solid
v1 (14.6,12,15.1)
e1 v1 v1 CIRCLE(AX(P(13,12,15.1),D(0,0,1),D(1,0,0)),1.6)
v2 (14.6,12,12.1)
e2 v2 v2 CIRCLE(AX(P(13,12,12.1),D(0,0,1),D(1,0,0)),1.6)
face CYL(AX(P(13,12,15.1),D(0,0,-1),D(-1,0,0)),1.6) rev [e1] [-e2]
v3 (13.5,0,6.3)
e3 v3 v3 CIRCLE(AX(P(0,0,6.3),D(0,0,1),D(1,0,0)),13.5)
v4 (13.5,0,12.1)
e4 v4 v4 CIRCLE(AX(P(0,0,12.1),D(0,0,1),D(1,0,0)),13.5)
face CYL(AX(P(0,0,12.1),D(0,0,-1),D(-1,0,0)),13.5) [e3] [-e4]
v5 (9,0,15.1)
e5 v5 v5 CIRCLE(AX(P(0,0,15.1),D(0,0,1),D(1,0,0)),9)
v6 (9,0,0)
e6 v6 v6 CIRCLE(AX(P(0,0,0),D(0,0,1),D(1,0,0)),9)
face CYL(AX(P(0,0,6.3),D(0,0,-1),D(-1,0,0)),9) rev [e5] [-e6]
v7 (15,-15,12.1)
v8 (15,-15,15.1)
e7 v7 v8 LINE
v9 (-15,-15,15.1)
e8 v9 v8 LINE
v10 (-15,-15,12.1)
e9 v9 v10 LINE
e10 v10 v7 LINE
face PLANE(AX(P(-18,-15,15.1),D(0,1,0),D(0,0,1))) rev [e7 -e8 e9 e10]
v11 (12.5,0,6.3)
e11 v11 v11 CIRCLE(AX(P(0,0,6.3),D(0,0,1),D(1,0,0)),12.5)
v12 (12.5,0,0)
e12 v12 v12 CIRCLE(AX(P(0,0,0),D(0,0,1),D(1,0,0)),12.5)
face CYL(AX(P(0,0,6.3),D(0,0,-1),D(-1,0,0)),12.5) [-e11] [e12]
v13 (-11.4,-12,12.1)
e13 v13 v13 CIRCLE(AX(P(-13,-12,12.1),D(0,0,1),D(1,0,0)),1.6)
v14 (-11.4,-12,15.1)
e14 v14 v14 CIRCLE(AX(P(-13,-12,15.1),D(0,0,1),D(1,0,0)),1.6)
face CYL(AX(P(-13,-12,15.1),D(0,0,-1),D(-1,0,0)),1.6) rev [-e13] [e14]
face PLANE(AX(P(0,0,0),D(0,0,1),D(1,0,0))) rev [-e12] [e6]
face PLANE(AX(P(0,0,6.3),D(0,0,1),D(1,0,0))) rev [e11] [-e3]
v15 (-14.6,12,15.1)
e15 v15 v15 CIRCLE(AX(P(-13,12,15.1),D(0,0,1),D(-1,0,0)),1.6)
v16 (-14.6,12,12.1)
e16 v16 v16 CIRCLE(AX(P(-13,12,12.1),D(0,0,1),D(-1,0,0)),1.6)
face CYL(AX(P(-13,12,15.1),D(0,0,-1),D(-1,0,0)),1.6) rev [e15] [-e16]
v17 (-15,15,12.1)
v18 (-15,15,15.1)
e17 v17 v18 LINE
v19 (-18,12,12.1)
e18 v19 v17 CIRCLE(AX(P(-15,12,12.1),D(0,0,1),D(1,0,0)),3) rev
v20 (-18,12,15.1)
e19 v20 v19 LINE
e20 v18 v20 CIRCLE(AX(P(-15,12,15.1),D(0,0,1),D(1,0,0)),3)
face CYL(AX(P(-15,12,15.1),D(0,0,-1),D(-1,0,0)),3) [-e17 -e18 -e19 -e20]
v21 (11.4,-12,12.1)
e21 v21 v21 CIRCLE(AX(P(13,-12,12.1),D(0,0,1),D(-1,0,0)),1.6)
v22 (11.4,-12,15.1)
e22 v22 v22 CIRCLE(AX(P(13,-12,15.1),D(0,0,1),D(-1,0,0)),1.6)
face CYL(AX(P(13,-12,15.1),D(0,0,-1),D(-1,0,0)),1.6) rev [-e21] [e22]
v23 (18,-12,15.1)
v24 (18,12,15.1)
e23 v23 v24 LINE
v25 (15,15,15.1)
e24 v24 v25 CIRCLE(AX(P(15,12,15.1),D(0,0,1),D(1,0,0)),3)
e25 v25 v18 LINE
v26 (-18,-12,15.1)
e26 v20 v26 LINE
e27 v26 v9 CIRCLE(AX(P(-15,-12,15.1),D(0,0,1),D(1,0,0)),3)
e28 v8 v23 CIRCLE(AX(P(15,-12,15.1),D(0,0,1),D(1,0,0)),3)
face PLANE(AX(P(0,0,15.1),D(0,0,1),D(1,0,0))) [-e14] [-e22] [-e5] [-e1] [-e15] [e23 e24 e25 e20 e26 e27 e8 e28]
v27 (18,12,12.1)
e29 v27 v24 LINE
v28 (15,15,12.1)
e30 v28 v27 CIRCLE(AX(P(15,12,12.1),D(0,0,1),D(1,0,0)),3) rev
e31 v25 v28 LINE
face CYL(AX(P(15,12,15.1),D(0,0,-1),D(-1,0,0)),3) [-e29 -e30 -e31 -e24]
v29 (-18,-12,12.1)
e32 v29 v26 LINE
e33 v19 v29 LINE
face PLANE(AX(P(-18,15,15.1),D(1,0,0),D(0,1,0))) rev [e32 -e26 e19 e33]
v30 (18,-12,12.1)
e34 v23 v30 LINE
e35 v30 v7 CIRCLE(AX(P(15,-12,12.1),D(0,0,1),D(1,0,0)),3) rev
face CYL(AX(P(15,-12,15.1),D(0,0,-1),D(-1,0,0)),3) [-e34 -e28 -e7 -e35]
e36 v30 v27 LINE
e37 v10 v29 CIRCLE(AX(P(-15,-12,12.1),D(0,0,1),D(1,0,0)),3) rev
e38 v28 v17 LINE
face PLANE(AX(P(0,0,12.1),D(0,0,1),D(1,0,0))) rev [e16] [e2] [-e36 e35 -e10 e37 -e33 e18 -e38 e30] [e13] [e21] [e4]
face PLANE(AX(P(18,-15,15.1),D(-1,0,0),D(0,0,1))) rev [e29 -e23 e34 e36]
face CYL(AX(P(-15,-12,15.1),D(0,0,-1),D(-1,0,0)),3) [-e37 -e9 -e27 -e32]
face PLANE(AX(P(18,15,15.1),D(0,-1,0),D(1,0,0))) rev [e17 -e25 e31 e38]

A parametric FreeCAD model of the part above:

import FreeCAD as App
import Part
import Sketcher
from FreeCAD import Vector


def edges_at(feature, points):
    """Names of the edges that pass closest to the given points."""
    edges = feature.Shape.Edges
    near = lambda p: min(range(len(edges)), key=lambda i: edges[i].distToShape(Part.Vertex(*p))[0])
    return sorted({f"Edge{near(p) + 1}" for p in points})


def add_polygon(sketch, points):
    """Adds a closed chain of lines whose ends are joined by coincident constraints."""
    first, n = sketch.GeometryCount, len(points)
    for a, b in zip(points, points[1:] + points[:1]):
        sketch.addGeometry(Part.LineSegment(App.Vector(*a, 0), App.Vector(*b, 0)), False)
    for i in range(n):
        sketch.addConstraint(Sketcher.Constraint("Coincident", first + i, 2, first + (i + 1) % n, 1))

doc = App.newDocument("Part")
body = doc.addObject("PartDesign::Body", "Body")

sketch1 = body.newObject("Sketcher::SketchObject", "Sketch")
sketch1.AttachmentSupport = (doc.getObject("XY_Plane"), [""])
sketch1.MapMode = "FlatFace"
sketch1.addGeometry([
    Part.Circle(Vector(0, 0, 0), Vector(0, 0, 1), 12),
    Part.Circle(Vector(0, 0, 0), Vector(0, 0, 1), 9),
], False)
sketch1.addConstraint([
    Sketcher.Constraint("Coincident", 0, 3, -1, 1),
    Sketcher.Constraint("Coincident", 1, 3, -1, 1),
    Sketcher.Constraint("Diameter", 0, 25.0),
    Sketcher.Constraint("Diameter", 1, 18.0),
])
pad1 = body.newObject("PartDesign::Pad", "Pad")
pad1.Profile = sketch1
pad1.Length = 6.3

sketch2 = body.newObject("Sketcher::SketchObject", "Sketch001")
sketch2.AttachmentSupport = (doc.getObject("XY_Plane"), [""])
sketch2.MapMode = "FlatFace"
sketch2.AttachmentOffset = App.Placement(Vector(0, 0, 6.3), App.Rotation())
sketch2.addGeometry([
    Part.Circle(Vector(0, 0, 0), Vector(0, 0, 1), 14),
    Part.Circle(Vector(0, 0, 0), Vector(0, 0, 1), 9),
], False)
sketch2.addConstraint([
    Sketcher.Constraint("Coincident", 0, 3, -1, 1),
    Sketcher.Constraint("Coincident", 1, 3, -1, 1),
    Sketcher.Constraint("Diameter", 0, 27.0),
    Sketcher.Constraint("Diameter", 1, 18.0),
])
pad2 = body.newObject("PartDesign::Pad", "Pad001")
pad2.Profile = sketch2
pad2.Length = 5.8

sketch3 = body.newObject("Sketcher::SketchObject", "Sketch002")
sketch3.AttachmentSupport = (doc.getObject("XY_Plane"), [""])
sketch3.MapMode = "FlatFace"
sketch3.AttachmentOffset = App.Placement(Vector(0, 0, 12.1), App.Rotation())
add_polygon(sketch3, [(-18, 15), (-18, -15), (18, -15), (18, 15)])
sketch3.addGeometry(Part.Circle(Vector(-13, -12, 0), Vector(0, 0, 1), 1.6), False)
sketch3.addGeometry(Part.Circle(Vector(13, -12, 0), Vector(0, 0, 1), 1.6), False)
sketch3.addGeometry(Part.Circle(Vector(0, 0, 0), Vector(0, 0, 1), 9), False)
sketch3.addGeometry(Part.Circle(Vector(-13, 12, 0), Vector(0, 0, 1), 1.6), False)
sketch3.addGeometry(Part.Circle(Vector(13, 12, 0), Vector(0, 0, 1), 1.6), False)
sketch3.addConstraint([
    Sketcher.Constraint("Vertical", 0),
    Sketcher.Constraint("Horizontal", 1),
    Sketcher.Constraint("Vertical", 2),
    Sketcher.Constraint("Horizontal", 3),
    Sketcher.Constraint("Coincident", 6, 3, -1, 1),
    Sketcher.Constraint("Equal", 4, 5),
    Sketcher.Constraint("Equal", 5, 7),
    Sketcher.Constraint("Equal", 7, 8),
    Sketcher.Constraint("Symmetric", 5, 3, 7, 3, -1, 1),
    Sketcher.Constraint("Symmetric", 4, 3, 8, 3, -1, 1),
    Sketcher.Constraint("Symmetric", 0, 2, 2, 2, -1, 1),
    Sketcher.Constraint("Symmetric", 4, 3, 5, 3, -2),
    Sketcher.Constraint("Diameter", 6, 18.0),
    Sketcher.Constraint("Diameter", 4, 3.2),
    Sketcher.Constraint("DistanceX", 1, 1, 1, 2, 36.0),
    Sketcher.Constraint("DistanceY", 0, 2, 0, 1, 30.0),
    Sketcher.Constraint("DistanceX", 4, 3, -1, 1, 13.0),
    Sketcher.Constraint("DistanceY", 4, 3, -1, 1, 12.0),
])
pad3 = body.newObject("PartDesign::Pad", "Pad002")
pad3.Profile = sketch3
pad3.Length = 3
doc.recompute()

fillet = body.newObject("PartDesign::Fillet", "Fillet")
fillet.Base = (pad3, edges_at(pad3, [
    (18, 15, 13.6),
    (-18, 15, 13.6),
    (-18, -15, 13.6),
    (18, -15, 13.6),
]))
fillet.Radius = 3

doc.recompute()
